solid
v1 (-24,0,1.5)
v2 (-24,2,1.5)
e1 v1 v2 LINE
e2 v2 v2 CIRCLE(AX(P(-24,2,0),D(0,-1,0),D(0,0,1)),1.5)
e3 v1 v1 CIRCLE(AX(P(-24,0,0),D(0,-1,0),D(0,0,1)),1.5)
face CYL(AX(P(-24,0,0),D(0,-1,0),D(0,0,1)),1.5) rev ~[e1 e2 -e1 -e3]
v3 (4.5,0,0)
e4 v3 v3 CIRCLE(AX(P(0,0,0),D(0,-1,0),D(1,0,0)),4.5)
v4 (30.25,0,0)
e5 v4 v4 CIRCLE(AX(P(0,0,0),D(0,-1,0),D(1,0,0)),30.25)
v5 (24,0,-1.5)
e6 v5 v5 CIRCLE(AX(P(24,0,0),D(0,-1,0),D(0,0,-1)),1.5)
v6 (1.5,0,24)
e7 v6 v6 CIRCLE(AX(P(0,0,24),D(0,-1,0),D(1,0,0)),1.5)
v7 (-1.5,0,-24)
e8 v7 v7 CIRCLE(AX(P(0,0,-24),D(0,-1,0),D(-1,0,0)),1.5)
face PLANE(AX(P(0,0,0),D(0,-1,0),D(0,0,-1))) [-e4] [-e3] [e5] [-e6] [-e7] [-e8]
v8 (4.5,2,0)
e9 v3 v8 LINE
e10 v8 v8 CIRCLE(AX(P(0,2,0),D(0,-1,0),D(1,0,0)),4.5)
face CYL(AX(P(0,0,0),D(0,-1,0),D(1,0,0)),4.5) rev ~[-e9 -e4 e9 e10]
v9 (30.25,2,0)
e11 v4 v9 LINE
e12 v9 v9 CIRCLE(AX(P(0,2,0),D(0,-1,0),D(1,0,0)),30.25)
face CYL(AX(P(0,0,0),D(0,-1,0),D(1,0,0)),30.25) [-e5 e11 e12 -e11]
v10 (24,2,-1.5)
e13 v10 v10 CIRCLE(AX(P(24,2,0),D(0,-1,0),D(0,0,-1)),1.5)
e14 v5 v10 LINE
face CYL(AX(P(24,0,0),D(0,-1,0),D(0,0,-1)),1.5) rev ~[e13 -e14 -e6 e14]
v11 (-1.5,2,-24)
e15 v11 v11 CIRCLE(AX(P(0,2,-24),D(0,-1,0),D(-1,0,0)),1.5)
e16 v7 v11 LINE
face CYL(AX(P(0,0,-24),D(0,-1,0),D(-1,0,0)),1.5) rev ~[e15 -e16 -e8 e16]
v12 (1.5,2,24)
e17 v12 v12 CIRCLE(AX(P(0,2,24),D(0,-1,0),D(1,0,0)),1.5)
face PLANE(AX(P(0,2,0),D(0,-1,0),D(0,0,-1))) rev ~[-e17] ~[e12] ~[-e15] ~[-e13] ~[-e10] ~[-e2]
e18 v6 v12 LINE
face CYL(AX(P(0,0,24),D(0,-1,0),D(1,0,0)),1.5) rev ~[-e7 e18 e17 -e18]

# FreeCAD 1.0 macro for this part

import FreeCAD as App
import Part
import Sketcher
from FreeCAD import Vector

doc = App.newDocument("Part")
params = doc.addObject("Spreadsheet::Sheet", "Params")
for row, (alias, value) in enumerate([
    ("sketch1_diameter", "60.5 mm"),
    ("pad1_length", "2 mm"),
    ("sketch2_diameter", "9 mm"),
    ("sketch3_diameter", "3 mm"),
], start=1):
    params.set(f"A{row}", alias)
    params.set(f"B{row}", "=" + value)
    params.setAlias(f"B{row}", alias)

body = doc.addObject("PartDesign::Body", "Body")

sketch1 = doc.addObject("Sketcher::SketchObject", "Sketch")
body.addObject(sketch1)
sketch1.AttachmentSupport = (doc.XZ_Plane, [""])
sketch1.MapMode = "FlatFace"
sketch1.addGeometry(Part.Circle(Vector(0, 0, 0), Vector(0, 0, 1), 30), False)
sketch1.addConstraint([
    Sketcher.Constraint("Coincident", 0, 3, -1, 1),
    Sketcher.Constraint("Diameter", 0, 60.5),
])
sketch1.setExpression("Constraints[1]", "Params.sketch1_diameter")
pad1 = doc.addObject("PartDesign::Pad", "Pad")
body.addObject(pad1)
pad1.Profile = sketch1
pad1.setExpression("Length", "Params.pad1_length")
pad1.Reversed = True

sketch2 = doc.addObject("Sketcher::SketchObject", "Sketch001")
body.addObject(sketch2)
sketch2.AttachmentSupport = (doc.XZ_Plane, [""])
sketch2.MapMode = "FlatFace"
sketch2.addGeometry(Part.Circle(Vector(0, 0, 0), Vector(0, 0, 1), 4.5), False)
sketch2.addConstraint([
    Sketcher.Constraint("Coincident", 0, 3, -1, 1),
    Sketcher.Constraint("Diameter", 0, 9.0),
])
sketch2.setExpression("Constraints[1]", "Params.sketch2_diameter")
pocket1 = doc.addObject("PartDesign::Pocket", "Pocket")
body.addObject(pocket1)
pocket1.Profile = sketch2
pocket1.Type = "ThroughAll"

sketch3 = doc.addObject("Sketcher::SketchObject", "Sketch002")
body.addObject(sketch3)
sketch3.AttachmentSupport = (doc.XZ_Plane, [""])
sketch3.MapMode = "FlatFace"
sketch3.addGeometry(Part.Circle(Vector(0, 24, 0), Vector(0, 0, 1), 1.5), False)
sketch3.addConstraint([
    Sketcher.Constraint("PointOnObject", 0, 3, -2),
    Sketcher.Constraint("Diameter", 0, 3.0),
    Sketcher.Constraint("DistanceY", -1, 1, 0, 3, 24.0),
])
sketch3.setExpression("Constraints[1]", "Params.sketch3_diameter")
pocket2 = doc.addObject("PartDesign::Pocket", "Pocket001")
body.addObject(pocket2)
pocket2.Profile = sketch3
pocket2.Type = "ThroughAll"
doc.recompute()

polarpattern = doc.addObject("PartDesign::PolarPattern", "PolarPattern")
body.addObject(polarpattern)
polarpattern.Originals = [pocket2]
polarpattern.Axis = (doc.Y_Axis, [""])
polarpattern.Angle = 360
polarpattern.Occurrences = 4
body.Tip = polarpattern

doc.recompute()
